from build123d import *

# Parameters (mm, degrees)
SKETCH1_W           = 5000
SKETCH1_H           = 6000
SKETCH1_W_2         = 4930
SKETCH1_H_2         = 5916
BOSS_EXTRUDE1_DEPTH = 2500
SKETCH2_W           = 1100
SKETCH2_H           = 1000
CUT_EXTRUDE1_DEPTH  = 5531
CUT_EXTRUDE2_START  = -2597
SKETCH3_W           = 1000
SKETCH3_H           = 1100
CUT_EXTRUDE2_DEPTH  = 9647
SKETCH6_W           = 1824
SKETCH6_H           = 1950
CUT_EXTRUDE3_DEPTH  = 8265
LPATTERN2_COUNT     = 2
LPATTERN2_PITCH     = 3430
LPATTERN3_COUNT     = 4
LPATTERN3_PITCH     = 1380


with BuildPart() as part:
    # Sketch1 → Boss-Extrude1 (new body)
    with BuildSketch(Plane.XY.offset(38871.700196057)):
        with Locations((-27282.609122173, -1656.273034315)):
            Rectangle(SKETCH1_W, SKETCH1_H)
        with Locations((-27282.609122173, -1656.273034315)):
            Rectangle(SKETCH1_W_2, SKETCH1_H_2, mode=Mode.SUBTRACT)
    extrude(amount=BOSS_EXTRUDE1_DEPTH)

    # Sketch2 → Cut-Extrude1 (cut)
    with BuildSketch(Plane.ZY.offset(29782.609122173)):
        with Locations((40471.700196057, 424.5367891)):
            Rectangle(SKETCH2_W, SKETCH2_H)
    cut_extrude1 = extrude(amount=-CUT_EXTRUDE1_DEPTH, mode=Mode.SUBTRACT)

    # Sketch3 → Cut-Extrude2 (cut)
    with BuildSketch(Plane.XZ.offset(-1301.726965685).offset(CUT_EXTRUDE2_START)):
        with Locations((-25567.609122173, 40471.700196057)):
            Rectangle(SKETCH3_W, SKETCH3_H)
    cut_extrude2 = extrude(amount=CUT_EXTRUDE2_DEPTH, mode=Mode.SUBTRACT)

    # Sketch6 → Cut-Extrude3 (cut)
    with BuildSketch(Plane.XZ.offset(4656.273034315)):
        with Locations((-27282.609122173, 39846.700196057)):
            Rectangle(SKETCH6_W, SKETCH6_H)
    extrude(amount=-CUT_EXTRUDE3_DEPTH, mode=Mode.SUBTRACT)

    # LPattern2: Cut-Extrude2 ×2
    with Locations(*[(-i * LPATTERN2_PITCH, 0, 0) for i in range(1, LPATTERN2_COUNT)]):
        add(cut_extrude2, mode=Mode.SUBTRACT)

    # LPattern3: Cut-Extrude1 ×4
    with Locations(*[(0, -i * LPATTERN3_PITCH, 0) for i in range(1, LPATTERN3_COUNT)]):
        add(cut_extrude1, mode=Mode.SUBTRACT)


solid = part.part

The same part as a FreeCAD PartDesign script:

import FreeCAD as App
import Part
import Sketcher

V = App.Vector


def add_polygon(sketch, points):
    """Adds a closed chain of lines whose ends are joined by coincident constraints."""
    first, n = sketch.GeometryCount, len(points)
    for a, b in zip(points, points[1:] + points[:1]):
        sketch.addGeometry(Part.LineSegment(App.Vector(*a, 0), App.Vector(*b, 0)), False)
    for i in range(n):
        sketch.addConstraint(Sketcher.Constraint("Coincident", first + i, 2, first + (i + 1) % n, 1))

doc = App.newDocument("Part")
body = doc.addObject("PartDesign::Body", "Body")

sketch1 = body.newObject("Sketcher::SketchObject", "Sketch")
sketch1.AttachmentSupport = (doc.getObject("XY_Plane"), [""])
sketch1.MapMode = "FlatFace"
sketch1.AttachmentOffset = App.Placement(V(0, 0, 38871.700196), App.Rotation())
add_polygon(sketch1, [(-29783, 1344), (-29783, -4656), (-24783, -4656), (-24783, 1344)])
add_polygon(sketch1, [(-24818, -4614), (-29748, -4614), (-29748, 1302), (-24818, 1302)])
sketch1.addConstraint(Sketcher.Constraint("Vertical", 0))
sketch1.addConstraint(Sketcher.Constraint("Horizontal", 1))
sketch1.addConstraint(Sketcher.Constraint("Vertical", 2))
sketch1.addConstraint(Sketcher.Constraint("Horizontal", 3))
sketch1.addConstraint(Sketcher.Constraint("Horizontal", 4))
sketch1.addConstraint(Sketcher.Constraint("Vertical", 5))
sketch1.addConstraint(Sketcher.Constraint("Horizontal", 6))
sketch1.addConstraint(Sketcher.Constraint("Vertical", 7))
sketch1.addConstraint(Sketcher.Constraint("DistanceX", 1, 1, 1, 2, 5000.0))
sketch1.addConstraint(Sketcher.Constraint("DistanceX", 4, 2, 4, 1, 4930.0))
sketch1.addConstraint(Sketcher.Constraint("DistanceY", 0, 2, 0, 1, 6000.0))
sketch1.addConstraint(Sketcher.Constraint("DistanceY", 5, 1, 5, 2, 5916.0))
sketch1.addConstraint(Sketcher.Constraint("DistanceX", 0, 2, 4, 2, 35.0))
sketch1.addConstraint(Sketcher.Constraint("DistanceY", 0, 2, 4, 2, 42.0))
sketch1.addConstraint(Sketcher.Constraint("DistanceX", 0, 2, -1, 1, 29782.609122))
sketch1.addConstraint(Sketcher.Constraint("DistanceY", 0, 2, -1, 1, 4656.273034))
pad1 = body.newObject("PartDesign::Pad", "Pad")
pad1.Profile = sketch1
pad1.Length = 2500

sketch2 = body.newObject("Sketcher::SketchObject", "Sketch001")
sketch2.AttachmentSupport = (doc.getObject("YZ_Plane"), [""])
sketch2.MapMode = "FlatFace"
sketch2.AttachmentOffset = App.Placement(V(0, 0, -29782.609122), App.Rotation())
add_polygon(sketch2, [(925, 39922), (-75, 39922), (-75, 41022), (925, 41022)])
sketch2.addConstraint(Sketcher.Constraint("Horizontal", 0))
sketch2.addConstraint(Sketcher.Constraint("Vertical", 1))
sketch2.addConstraint(Sketcher.Constraint("Horizontal", 2))
sketch2.addConstraint(Sketcher.Constraint("Vertical", 3))
sketch2.addConstraint(Sketcher.Constraint("DistanceX", 0, 2, 0, 1, 1000.0))
sketch2.addConstraint(Sketcher.Constraint("DistanceY", 1, 1, 1, 2, 1100.0))
sketch2.addConstraint(Sketcher.Constraint("DistanceX", 0, 2, -1, 1, 75.463211))
sketch2.addConstraint(Sketcher.Constraint("DistanceY", -1, 1, 0, 2, 39921.700196))
pocket1 = body.newObject("PartDesign::Pocket", "Pocket")
pocket1.Profile = sketch2
pocket1.Length = 5531
pocket1.Reversed = True

sketch3 = body.newObject("Sketcher::SketchObject", "Sketch002")
sketch3.AttachmentSupport = (doc.getObject("XZ_Plane"), [""])
sketch3.MapMode = "FlatFace"
sketch3.AttachmentOffset = App.Placement(V(0, 0, -3898.726966), App.Rotation())
add_polygon(sketch3, [(-26068, 41022), (-26068, 39922), (-25068, 39922), (-25068, 41022)])
sketch3.addConstraint(Sketcher.Constraint("Vertical", 0))
sketch3.addConstraint(Sketcher.Constraint("Horizontal", 1))
sketch3.addConstraint(Sketcher.Constraint("Vertical", 2))
sketch3.addConstraint(Sketcher.Constraint("Horizontal", 3))
sketch3.addConstraint(Sketcher.Constraint("DistanceX", 1, 1, 1, 2, 1000.0))
sketch3.addConstraint(Sketcher.Constraint("DistanceY", 0, 2, 0, 1, 1100.0))
sketch3.addConstraint(Sketcher.Constraint("DistanceX", 0, 2, -1, 1, 26067.609122))
sketch3.addConstraint(Sketcher.Constraint("DistanceY", -1, 1, 0, 2, 39921.700196))
pocket2 = body.newObject("PartDesign::Pocket", "Pocket001")
pocket2.Profile = sketch3
pocket2.Length = 9647
pocket2.Reversed = True

sketch4 = body.newObject("Sketcher::SketchObject", "Sketch003")
sketch4.AttachmentSupport = (doc.getObject("XZ_Plane"), [""])
sketch4.MapMode = "FlatFace"
sketch4.AttachmentOffset = App.Placement(V(0, 0, 4656.273034), App.Rotation())
add_polygon(sketch4, [(-28195, 40822), (-28195, 38872), (-26371, 38872), (-26371, 40822)])
sketch4.addConstraint(Sketcher.Constraint("Vertical", 0))
sketch4.addConstraint(Sketcher.Constraint("Horizontal", 1))
sketch4.addConstraint(Sketcher.Constraint("Vertical", 2))
sketch4.addConstraint(Sketcher.Constraint("Horizontal", 3))
sketch4.addConstraint(Sketcher.Constraint("DistanceX", 1, 1, 1, 2, 1824.0))
sketch4.addConstraint(Sketcher.Constraint("DistanceY", 0, 2, 0, 1, 1950.0))
sketch4.addConstraint(Sketcher.Constraint("DistanceX", 0, 2, -1, 1, 28194.609122))
sketch4.addConstraint(Sketcher.Constraint("DistanceY", -1, 1, 0, 2, 38871.700196))
pocket3 = body.newObject("PartDesign::Pocket", "Pocket002")
pocket3.Profile = sketch4
pocket3.Length = 8265
doc.recompute()

linearpattern = body.newObject("PartDesign::LinearPattern", "LinearPattern")
linearpattern.Originals = [pocket2]
linearpattern.Direction = (doc.getObject("X_Axis"), [""])
linearpattern.Mode = "offset"
linearpattern.Offset = 3430
linearpattern.Occurrences = 2
linearpattern.Reversed = True
body.Tip = linearpattern
doc.recompute()

linearpattern2 = body.newObject("PartDesign::LinearPattern", "LinearPattern001")
linearpattern2.Originals = [pocket1]
linearpattern2.Direction = (doc.getObject("Y_Axis"), [""])
linearpattern2.Mode = "offset"
linearpattern2.Offset = 1380
linearpattern2.Occurrences = 4
linearpattern2.Reversed = True
body.Tip = linearpattern2

doc.recompute()
